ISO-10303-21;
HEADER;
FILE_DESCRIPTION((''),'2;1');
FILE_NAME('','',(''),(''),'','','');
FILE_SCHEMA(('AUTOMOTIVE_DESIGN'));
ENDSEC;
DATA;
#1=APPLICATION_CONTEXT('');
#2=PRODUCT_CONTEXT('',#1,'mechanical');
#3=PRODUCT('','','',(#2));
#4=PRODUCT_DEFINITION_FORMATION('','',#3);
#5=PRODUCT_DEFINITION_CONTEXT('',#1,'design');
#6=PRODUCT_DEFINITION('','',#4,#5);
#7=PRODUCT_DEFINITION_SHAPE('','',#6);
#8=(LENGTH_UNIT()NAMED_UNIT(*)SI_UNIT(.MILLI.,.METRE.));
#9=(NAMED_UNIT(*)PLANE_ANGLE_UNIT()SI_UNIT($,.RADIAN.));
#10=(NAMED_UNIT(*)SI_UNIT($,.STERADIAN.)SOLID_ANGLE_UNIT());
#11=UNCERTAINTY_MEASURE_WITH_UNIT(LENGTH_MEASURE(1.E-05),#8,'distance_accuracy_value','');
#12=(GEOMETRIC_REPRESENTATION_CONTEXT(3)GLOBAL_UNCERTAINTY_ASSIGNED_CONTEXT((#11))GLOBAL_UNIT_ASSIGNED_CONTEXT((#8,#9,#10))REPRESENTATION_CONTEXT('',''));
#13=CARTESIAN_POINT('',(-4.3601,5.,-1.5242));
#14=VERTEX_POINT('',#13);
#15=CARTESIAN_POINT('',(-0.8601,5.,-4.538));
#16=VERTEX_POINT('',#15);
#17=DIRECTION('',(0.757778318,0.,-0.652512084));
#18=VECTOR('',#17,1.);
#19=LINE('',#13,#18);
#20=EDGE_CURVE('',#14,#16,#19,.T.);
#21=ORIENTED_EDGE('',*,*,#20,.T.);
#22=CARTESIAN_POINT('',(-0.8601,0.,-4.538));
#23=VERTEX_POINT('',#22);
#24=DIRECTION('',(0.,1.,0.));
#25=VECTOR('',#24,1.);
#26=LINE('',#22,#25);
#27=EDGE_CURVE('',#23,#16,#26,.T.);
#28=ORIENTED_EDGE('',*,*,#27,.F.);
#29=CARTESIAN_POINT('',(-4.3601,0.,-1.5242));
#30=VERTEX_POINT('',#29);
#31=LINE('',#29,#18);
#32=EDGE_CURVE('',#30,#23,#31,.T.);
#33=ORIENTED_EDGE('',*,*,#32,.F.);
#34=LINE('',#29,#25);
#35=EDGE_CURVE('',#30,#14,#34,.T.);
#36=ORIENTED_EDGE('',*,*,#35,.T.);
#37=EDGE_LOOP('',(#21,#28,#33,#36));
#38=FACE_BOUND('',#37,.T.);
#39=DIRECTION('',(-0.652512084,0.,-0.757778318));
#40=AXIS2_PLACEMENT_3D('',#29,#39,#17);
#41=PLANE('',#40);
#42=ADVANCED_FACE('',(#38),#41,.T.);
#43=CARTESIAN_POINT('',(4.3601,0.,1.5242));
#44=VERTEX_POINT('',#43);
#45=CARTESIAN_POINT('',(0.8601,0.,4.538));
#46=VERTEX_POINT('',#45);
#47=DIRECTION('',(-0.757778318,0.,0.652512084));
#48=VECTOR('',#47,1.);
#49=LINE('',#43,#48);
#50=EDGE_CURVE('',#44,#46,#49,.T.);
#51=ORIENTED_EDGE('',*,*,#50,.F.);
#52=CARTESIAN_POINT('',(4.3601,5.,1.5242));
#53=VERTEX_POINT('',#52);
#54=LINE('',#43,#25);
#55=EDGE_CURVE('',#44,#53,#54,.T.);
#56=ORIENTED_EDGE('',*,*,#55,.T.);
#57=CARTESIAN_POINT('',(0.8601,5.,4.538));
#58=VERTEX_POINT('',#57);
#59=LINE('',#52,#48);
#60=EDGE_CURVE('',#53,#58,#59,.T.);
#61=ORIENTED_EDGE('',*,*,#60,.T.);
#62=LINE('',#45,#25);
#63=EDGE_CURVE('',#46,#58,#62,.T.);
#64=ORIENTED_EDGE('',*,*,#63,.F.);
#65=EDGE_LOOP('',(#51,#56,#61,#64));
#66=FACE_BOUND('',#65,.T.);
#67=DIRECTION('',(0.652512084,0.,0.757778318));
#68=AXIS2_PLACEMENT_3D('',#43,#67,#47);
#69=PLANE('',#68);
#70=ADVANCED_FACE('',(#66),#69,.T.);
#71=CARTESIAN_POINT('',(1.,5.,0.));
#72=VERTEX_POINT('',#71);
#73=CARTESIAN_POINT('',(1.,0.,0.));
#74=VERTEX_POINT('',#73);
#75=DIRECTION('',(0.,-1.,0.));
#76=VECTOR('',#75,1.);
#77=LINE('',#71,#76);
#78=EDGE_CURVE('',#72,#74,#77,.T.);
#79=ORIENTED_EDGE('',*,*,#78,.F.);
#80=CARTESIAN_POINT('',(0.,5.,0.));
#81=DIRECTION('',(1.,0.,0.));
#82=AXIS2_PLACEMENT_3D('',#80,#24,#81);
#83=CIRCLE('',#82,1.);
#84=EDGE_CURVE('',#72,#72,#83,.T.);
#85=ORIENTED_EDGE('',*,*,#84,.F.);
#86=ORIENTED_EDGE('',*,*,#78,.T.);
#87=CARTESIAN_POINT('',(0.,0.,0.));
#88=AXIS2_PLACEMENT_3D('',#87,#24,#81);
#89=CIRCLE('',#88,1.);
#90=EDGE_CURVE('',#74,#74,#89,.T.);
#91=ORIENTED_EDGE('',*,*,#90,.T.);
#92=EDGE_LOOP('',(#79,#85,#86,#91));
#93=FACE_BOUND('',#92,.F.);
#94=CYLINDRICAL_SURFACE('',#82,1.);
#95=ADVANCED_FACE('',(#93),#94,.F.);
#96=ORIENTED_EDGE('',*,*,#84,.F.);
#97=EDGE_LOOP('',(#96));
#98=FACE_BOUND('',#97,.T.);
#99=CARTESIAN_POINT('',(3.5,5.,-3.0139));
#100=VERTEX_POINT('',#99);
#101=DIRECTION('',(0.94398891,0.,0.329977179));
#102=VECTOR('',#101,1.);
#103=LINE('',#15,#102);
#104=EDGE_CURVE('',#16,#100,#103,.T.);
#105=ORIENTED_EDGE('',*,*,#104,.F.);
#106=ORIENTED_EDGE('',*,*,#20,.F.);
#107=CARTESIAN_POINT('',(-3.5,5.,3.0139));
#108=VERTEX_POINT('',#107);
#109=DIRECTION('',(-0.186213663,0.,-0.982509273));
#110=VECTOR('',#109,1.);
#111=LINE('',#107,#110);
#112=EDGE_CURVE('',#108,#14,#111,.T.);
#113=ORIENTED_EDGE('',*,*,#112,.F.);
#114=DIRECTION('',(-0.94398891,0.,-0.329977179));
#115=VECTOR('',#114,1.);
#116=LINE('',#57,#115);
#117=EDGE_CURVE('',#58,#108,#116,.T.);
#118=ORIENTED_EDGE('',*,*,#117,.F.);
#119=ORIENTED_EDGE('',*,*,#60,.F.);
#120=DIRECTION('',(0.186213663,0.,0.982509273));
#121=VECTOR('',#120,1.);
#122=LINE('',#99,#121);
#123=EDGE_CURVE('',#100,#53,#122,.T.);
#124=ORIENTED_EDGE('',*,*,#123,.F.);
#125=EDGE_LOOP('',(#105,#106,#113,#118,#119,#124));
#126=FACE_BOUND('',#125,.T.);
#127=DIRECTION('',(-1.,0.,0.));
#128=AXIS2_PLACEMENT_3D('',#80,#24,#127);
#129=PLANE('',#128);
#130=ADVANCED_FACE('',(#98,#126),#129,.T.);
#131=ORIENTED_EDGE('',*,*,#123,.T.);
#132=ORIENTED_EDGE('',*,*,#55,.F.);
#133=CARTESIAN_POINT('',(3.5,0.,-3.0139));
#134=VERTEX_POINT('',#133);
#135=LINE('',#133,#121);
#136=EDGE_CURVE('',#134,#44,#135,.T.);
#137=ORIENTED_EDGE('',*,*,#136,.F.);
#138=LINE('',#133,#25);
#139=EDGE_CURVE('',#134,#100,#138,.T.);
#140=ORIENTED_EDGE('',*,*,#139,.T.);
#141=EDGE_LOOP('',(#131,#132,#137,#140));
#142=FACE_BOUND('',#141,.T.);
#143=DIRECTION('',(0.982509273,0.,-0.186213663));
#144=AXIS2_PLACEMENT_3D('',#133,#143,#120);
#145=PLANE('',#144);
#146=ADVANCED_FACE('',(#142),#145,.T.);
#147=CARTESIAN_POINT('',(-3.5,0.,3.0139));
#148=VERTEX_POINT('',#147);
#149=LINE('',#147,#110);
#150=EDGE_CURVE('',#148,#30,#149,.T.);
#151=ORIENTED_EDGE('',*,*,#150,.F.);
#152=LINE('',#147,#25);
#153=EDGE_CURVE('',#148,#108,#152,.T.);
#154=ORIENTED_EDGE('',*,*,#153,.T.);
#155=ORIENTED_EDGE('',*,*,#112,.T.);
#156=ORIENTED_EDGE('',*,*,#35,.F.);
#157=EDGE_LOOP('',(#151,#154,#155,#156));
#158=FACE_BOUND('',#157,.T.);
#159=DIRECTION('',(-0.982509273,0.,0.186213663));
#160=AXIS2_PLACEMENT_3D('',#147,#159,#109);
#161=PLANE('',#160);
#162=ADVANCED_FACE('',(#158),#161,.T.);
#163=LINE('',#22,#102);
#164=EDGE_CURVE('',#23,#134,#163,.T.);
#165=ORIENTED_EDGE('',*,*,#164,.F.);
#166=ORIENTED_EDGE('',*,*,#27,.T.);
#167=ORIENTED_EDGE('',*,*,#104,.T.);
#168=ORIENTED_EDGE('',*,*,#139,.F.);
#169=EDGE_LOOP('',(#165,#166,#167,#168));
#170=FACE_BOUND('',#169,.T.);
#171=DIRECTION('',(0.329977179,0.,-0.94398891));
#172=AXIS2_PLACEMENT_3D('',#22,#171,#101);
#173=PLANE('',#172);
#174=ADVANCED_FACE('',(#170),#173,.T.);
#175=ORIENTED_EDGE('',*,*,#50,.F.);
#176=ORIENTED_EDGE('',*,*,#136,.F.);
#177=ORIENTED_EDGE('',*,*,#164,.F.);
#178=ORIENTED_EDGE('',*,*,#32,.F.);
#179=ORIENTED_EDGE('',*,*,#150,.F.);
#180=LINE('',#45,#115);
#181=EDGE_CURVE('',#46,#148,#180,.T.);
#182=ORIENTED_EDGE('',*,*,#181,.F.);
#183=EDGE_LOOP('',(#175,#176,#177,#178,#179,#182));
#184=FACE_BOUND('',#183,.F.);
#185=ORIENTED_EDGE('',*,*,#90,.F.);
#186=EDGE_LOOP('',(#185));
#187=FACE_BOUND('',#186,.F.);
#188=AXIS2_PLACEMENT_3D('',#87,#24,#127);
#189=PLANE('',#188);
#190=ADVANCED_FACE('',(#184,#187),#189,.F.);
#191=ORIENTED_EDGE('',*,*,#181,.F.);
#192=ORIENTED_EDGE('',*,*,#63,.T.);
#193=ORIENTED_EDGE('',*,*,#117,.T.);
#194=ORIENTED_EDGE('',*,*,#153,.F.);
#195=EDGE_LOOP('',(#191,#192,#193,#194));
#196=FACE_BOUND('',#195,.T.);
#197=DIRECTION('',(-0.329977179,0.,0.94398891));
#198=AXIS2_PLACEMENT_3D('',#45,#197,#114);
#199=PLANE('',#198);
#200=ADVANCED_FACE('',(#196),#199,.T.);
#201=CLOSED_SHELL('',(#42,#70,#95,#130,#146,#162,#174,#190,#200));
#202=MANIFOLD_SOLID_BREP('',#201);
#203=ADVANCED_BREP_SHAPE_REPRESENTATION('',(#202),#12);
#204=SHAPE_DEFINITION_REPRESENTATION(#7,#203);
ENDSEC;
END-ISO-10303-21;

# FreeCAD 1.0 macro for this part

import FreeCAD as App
import Part
import Sketcher
Q = App.Units.Quantity

doc = App.newDocument("Part")
body = doc.addObject("PartDesign::Body", "Body")

sketch1 = body.newObject("Sketcher::SketchObject", "Sketch")
sketch1.AttachmentSupport = (doc.getObject("XZ_Plane"), [""])
sketch1.MapMode = "FlatFace"
sketch1.addGeometry(Part.LineSegment(App.Vector(3.5, -3, 0), App.Vector(-0.9, -4.5, 0)), False)
sketch1.addGeometry(Part.LineSegment(App.Vector(-0.9, -4.5, 0), App.Vector(-4.4, -1.5, 0)), False)
sketch1.addGeometry(Part.LineSegment(App.Vector(-4.4, -1.5, 0), App.Vector(-3.5, 3, 0)), False)
sketch1.addGeometry(Part.LineSegment(App.Vector(-3.5, 3, 0), App.Vector(0.9, 4.5, 0)), False)
sketch1.addGeometry(Part.LineSegment(App.Vector(0.9, 4.5, 0), App.Vector(4.4, 1.5, 0)), False)
sketch1.addGeometry(Part.LineSegment(App.Vector(4.4, 1.5, 0), App.Vector(3.5, -3, 0)), False)
sketch1.addConstraint(Sketcher.Constraint("Coincident", 0, 2, 1, 1))
sketch1.addConstraint(Sketcher.Constraint("Coincident", 1, 2, 2, 1))
sketch1.addConstraint(Sketcher.Constraint("Coincident", 2, 2, 3, 1))
sketch1.addConstraint(Sketcher.Constraint("Coincident", 3, 2, 4, 1))
sketch1.addConstraint(Sketcher.Constraint("Coincident", 4, 2, 5, 1))
sketch1.addConstraint(Sketcher.Constraint("Coincident", 5, 2, 0, 1))
sketch1.addConstraint(Sketcher.Constraint("Symmetric", 0, 2, 3, 2, -1, 1))
sketch1.addConstraint(Sketcher.Constraint("Symmetric", 1, 2, 4, 2, -1, 1))
sketch1.addConstraint(Sketcher.Constraint("Symmetric", 2, 2, 5, 2, -1, 1))
sketch1.addConstraint(Sketcher.Constraint("Equal", 0, 1))
sketch1.addConstraint(Sketcher.Constraint("Equal", 1, 2))
sketch1.addConstraint(Sketcher.Constraint("DistanceX", 2, 2, -1, 1, Q("3.5 mm")))
sketch1.addConstraint(Sketcher.Constraint("DistanceX", 1, 2, 0, 2, Q("3.5 mm")))
sketch1.addConstraint(Sketcher.Constraint("DistanceX", 0, 2, -1, 1, Q("0.86 mm")))
sketch1.addConstraint(Sketcher.Constraint("Distance", 2, Q("4.619 mm")))
pad1 = body.newObject("PartDesign::Pad", "Pad")
pad1.Profile = sketch1
pad1.Length = 5
pad1.Reversed = True

sketch2 = body.newObject("Sketcher::SketchObject", "Sketch001")
sketch2.AttachmentSupport = (doc.getObject("XZ_Plane"), [""])
sketch2.MapMode = "FlatFace"
sketch2.AttachmentOffset = App.Placement(App.Vector(0, 0, -5), App.Rotation())
sketch2.addGeometry(Part.Circle(App.Vector(0, 0, 0), App.Vector(0, 0, 1), 1), False)
sketch2.addConstraint(Sketcher.Constraint("Coincident", 0, 3, -1, 1))
sketch2.addConstraint(Sketcher.Constraint("Diameter", 0, Q("2 mm")))
pocket1 = body.newObject("PartDesign::Pocket", "Pocket")
pocket1.Profile = sketch2
pocket1.Length = 5
pocket1.Reversed = True

doc.recompute()
